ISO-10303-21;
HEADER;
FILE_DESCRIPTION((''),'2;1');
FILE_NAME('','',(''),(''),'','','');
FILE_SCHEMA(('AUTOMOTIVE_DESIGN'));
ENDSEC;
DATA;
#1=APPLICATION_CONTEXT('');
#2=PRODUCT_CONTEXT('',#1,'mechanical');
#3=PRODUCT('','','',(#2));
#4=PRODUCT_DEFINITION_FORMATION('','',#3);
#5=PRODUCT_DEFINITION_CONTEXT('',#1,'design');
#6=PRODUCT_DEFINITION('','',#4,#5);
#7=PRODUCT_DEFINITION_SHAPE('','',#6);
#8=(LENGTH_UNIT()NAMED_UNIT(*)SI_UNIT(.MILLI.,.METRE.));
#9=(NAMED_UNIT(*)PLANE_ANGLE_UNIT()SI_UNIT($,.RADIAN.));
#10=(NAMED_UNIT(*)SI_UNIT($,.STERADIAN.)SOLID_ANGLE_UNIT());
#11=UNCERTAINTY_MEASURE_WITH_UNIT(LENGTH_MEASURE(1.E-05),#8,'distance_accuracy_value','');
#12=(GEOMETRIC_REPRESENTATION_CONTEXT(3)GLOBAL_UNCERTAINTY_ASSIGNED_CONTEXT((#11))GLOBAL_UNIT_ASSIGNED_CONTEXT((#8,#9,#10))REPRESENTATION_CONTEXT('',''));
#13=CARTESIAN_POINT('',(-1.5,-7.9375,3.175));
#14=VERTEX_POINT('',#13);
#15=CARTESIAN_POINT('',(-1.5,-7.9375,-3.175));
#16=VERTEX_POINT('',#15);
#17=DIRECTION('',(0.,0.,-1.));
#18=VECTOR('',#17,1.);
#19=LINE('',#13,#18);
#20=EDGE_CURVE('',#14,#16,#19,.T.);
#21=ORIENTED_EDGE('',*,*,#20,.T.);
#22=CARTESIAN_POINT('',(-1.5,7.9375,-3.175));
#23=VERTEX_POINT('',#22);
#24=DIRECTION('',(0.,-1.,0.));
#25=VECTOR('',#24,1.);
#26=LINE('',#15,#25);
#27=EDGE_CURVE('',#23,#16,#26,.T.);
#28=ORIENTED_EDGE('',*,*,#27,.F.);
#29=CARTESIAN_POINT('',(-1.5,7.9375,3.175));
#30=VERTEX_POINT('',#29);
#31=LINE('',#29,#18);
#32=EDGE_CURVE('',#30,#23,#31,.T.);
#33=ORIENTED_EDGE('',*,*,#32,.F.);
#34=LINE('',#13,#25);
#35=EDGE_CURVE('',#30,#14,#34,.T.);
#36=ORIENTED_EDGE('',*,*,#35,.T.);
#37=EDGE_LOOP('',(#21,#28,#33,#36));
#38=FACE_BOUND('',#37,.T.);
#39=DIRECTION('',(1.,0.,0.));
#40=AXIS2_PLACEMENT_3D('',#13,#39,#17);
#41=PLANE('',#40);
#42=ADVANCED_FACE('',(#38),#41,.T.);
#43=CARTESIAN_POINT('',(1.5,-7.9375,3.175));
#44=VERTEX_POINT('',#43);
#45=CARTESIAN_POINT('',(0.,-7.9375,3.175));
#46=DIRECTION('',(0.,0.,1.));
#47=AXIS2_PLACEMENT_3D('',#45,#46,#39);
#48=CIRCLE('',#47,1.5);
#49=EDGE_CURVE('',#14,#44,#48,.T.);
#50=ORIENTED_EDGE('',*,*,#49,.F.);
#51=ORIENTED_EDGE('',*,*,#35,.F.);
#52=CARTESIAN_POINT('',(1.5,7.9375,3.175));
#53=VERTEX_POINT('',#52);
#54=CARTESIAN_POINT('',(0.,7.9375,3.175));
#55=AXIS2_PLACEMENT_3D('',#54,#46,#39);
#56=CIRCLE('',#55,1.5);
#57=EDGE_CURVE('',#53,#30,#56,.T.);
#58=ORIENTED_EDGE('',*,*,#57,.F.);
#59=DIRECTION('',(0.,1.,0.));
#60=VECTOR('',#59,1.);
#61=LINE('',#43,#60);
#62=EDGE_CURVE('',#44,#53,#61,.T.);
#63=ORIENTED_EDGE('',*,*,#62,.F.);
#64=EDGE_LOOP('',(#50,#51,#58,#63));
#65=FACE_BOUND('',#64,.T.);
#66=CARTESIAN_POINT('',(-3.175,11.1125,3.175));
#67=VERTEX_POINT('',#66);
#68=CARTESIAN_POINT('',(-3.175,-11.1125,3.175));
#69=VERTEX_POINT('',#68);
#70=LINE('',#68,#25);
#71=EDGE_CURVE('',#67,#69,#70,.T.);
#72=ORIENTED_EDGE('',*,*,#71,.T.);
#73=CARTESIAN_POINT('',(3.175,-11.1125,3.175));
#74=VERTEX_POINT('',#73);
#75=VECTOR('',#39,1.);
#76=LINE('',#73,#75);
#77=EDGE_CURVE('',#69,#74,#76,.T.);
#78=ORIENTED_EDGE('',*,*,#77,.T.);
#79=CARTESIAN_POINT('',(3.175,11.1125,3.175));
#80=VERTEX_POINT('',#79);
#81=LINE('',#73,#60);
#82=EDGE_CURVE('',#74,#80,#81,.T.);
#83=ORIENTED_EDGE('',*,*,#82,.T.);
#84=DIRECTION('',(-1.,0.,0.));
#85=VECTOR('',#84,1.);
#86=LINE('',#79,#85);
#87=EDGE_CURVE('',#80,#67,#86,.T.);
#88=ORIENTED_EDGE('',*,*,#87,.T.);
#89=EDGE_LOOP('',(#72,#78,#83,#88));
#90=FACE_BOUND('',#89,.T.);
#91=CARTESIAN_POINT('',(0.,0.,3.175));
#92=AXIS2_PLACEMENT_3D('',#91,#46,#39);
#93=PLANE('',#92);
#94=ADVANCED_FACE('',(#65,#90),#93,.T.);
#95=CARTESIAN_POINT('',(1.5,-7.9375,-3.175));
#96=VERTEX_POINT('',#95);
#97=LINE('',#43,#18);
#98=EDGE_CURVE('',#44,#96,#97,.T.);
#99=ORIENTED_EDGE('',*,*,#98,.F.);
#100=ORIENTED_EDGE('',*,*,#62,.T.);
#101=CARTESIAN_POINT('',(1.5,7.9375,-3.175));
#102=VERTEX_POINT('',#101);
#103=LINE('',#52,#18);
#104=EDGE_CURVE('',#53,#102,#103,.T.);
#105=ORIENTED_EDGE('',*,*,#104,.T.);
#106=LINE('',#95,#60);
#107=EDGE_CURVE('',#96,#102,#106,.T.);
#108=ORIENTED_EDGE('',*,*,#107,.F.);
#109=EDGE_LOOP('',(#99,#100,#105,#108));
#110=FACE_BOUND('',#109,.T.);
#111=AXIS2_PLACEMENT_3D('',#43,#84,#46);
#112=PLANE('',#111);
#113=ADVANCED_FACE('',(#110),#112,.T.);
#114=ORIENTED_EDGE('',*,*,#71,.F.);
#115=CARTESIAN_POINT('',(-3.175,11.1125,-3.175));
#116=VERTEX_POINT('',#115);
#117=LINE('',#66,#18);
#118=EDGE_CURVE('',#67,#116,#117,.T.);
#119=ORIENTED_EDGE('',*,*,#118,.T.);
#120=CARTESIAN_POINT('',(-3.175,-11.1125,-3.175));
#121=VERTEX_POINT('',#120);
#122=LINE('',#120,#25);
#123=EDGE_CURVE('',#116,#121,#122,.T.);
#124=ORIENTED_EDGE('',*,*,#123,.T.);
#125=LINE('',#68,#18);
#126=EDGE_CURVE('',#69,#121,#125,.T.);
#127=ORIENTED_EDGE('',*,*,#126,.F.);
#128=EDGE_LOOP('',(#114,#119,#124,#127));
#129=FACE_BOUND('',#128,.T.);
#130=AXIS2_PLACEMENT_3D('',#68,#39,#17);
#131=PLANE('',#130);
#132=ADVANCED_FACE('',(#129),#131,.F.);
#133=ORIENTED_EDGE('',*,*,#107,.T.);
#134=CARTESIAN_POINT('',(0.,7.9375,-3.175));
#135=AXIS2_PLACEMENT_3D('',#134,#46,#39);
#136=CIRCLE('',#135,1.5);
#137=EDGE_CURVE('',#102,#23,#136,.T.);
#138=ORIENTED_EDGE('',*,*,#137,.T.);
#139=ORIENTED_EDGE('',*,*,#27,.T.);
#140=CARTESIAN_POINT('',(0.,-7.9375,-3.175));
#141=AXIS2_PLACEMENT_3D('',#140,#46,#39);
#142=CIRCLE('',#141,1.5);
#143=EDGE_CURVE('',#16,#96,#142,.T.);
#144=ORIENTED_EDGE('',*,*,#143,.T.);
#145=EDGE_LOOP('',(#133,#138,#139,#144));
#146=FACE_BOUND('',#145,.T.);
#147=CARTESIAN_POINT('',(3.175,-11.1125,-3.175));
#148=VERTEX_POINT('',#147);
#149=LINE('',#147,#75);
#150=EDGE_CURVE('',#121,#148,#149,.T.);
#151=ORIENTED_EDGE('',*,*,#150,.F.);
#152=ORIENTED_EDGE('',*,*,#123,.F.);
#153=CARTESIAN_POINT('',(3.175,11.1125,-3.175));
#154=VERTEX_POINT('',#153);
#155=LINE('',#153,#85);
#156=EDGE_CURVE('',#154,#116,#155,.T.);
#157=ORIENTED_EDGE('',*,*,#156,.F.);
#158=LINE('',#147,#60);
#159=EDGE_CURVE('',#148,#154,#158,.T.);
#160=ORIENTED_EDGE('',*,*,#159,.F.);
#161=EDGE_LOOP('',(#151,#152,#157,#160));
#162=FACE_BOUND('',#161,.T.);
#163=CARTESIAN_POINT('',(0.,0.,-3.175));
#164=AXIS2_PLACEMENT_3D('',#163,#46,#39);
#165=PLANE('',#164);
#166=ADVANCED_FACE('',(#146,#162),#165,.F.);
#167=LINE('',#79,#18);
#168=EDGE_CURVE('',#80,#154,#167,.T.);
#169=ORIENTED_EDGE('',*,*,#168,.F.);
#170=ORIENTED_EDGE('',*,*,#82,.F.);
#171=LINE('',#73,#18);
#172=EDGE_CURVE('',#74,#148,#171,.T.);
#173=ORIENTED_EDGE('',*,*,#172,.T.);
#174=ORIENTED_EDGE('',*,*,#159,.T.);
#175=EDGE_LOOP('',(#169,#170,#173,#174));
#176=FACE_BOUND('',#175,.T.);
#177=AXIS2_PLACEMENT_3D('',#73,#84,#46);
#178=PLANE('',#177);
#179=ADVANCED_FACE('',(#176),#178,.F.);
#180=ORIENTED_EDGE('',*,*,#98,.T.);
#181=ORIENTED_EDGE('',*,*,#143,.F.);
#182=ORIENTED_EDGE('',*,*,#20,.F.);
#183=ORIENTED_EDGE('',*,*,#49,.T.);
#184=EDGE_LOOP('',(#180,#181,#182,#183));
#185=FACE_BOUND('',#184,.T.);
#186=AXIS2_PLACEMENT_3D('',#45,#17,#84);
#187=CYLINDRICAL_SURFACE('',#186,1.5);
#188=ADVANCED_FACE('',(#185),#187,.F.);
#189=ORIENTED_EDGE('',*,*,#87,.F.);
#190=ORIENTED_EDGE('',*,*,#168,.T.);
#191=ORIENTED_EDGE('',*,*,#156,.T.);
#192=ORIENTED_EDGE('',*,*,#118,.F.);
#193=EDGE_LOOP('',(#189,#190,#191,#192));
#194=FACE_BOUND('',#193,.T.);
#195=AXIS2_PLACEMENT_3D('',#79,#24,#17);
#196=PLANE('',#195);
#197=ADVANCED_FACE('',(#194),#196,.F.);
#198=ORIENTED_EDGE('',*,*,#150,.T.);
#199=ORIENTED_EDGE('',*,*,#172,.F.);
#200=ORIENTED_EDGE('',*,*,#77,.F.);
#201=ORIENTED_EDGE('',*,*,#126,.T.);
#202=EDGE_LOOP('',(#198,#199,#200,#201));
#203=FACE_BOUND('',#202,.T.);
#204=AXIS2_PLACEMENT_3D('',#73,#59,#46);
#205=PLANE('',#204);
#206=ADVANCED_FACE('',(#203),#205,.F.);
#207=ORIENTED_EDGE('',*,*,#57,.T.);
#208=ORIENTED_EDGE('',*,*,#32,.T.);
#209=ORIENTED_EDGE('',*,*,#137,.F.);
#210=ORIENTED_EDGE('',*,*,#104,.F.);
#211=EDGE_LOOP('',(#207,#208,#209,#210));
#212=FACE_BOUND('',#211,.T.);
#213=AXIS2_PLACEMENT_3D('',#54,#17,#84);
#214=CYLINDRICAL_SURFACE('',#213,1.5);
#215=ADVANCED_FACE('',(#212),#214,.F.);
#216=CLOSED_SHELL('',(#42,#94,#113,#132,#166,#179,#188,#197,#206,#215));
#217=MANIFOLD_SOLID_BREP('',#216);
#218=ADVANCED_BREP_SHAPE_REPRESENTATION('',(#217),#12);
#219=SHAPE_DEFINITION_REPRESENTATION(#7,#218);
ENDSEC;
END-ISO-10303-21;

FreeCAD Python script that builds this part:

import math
import FreeCAD as App
import Part
import Sketcher
Q = App.Units.Quantity

doc = App.newDocument("Part")
body = doc.addObject("PartDesign::Body", "Body")

sketch1 = body.newObject("Sketcher::SketchObject", "Sketch")
sketch1.AttachmentSupport = (doc.getObject("XY_Plane"), [""])
sketch1.MapMode = "FlatFace"
sketch1.addGeometry(Part.LineSegment(App.Vector(-3.175, 11.1125, 0), App.Vector(-3.175, -11.1125, 0)), False)
sketch1.addGeometry(Part.LineSegment(App.Vector(-3.175, -11.1125, 0), App.Vector(3.175, -11.1125, 0)), False)
sketch1.addGeometry(Part.LineSegment(App.Vector(3.175, -11.1125, 0), App.Vector(3.175, 11.1125, 0)), False)
sketch1.addGeometry(Part.LineSegment(App.Vector(3.175, 11.1125, 0), App.Vector(-3.175, 11.1125, 0)), False)
sketch1.addGeometry(Part.ArcOfCircle(Part.Circle(App.Vector(0, -7.9375, 0), App.Vector(0, 0, 1), 1.5), math.radians(180), math.radians(360)), False)
sketch1.addGeometry(Part.LineSegment(App.Vector(-1.5, -7.9375, 0), App.Vector(-1.5, 7.9375, 0)), False)
sketch1.addGeometry(Part.ArcOfCircle(Part.Circle(App.Vector(0, 7.9375, 0), App.Vector(0, 0, 1), 1.5), math.radians(0), math.radians(180)), False)
sketch1.addGeometry(Part.LineSegment(App.Vector(1.5, 7.9375, 0), App.Vector(1.5, -7.9375, 0)), False)
sketch1.addConstraint(Sketcher.Constraint("Coincident", 0, 2, 1, 1))
sketch1.addConstraint(Sketcher.Constraint("Coincident", 1, 2, 2, 1))
sketch1.addConstraint(Sketcher.Constraint("Coincident", 2, 2, 3, 1))
sketch1.addConstraint(Sketcher.Constraint("Coincident", 3, 2, 0, 1))
sketch1.addConstraint(Sketcher.Constraint("Tangent", 4, 1, 5, 1))
sketch1.addConstraint(Sketcher.Constraint("Tangent", 5, 2, 6, 2))
sketch1.addConstraint(Sketcher.Constraint("Tangent", 6, 1, 7, 1))
sketch1.addConstraint(Sketcher.Constraint("Tangent", 7, 2, 4, 2))
sketch1.addConstraint(Sketcher.Constraint("Vertical", 0))
sketch1.addConstraint(Sketcher.Constraint("Horizontal", 1))
sketch1.addConstraint(Sketcher.Constraint("Vertical", 2))
sketch1.addConstraint(Sketcher.Constraint("Horizontal", 3))
sketch1.addConstraint(Sketcher.Constraint("Vertical", 5))
sketch1.addConstraint(Sketcher.Constraint("Vertical", 7))
sketch1.addConstraint(Sketcher.Constraint("Symmetric", 4, 3, 6, 3, -1, 1))
sketch1.addConstraint(Sketcher.Constraint("Symmetric", 0, 2, 2, 2, -1, 1))
sketch1.addConstraint(Sketcher.Constraint("DistanceX", 1, 1, 1, 2, Q("0.25 in")))
sketch1.addConstraint(Sketcher.Constraint("DistanceY", 0, 2, 0, 1, Q("0.875 in")))
sketch1.addConstraint(Sketcher.Constraint("DistanceY", 5, 1, 5, 2, Q("0.625 in")))
sketch1.addConstraint(Sketcher.Constraint("Radius", 4, Q("1.5 mm")))
pad1 = body.newObject("PartDesign::Pad", "Pad")
pad1.Profile = sketch1
pad1.Length = Q("0.25 in")
pad1.Midplane = True

doc.recompute()
